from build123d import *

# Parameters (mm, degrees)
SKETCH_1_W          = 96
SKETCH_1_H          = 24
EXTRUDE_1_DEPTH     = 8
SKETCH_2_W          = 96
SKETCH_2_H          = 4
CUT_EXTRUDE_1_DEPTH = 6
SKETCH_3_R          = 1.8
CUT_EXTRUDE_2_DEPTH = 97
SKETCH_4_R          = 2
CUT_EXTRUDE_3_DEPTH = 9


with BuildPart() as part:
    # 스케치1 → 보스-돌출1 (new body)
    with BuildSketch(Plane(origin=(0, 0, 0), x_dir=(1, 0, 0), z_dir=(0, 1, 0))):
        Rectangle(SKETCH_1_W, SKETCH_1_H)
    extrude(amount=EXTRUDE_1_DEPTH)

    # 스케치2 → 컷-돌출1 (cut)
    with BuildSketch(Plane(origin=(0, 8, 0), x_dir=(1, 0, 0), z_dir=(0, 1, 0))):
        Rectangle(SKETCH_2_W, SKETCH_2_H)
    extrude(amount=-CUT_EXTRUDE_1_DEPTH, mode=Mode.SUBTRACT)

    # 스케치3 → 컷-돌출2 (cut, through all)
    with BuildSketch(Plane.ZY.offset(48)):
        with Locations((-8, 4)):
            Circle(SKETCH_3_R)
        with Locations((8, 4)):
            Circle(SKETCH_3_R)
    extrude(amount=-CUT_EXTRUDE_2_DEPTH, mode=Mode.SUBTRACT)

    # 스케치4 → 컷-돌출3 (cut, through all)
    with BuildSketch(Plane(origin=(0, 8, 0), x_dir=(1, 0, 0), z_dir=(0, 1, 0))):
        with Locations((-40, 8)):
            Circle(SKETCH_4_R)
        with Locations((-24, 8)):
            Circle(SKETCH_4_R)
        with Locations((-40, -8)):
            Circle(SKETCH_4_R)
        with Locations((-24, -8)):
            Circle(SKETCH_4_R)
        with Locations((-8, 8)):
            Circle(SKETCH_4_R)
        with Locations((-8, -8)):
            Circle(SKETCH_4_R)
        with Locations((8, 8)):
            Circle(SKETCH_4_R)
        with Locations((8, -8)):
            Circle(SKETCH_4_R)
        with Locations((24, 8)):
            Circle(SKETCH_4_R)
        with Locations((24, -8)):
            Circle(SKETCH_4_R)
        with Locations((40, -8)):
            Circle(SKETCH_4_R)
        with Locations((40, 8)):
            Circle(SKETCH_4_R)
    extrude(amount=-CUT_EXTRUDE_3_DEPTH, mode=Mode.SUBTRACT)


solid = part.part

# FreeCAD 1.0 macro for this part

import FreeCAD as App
import Part
import Sketcher
from FreeCAD import Vector


def add_polygon(sketch, points):
    """Adds a closed chain of lines whose ends are joined by coincident constraints."""
    first, n = sketch.GeometryCount, len(points)
    for a, b in zip(points, points[1:] + points[:1]):
        sketch.addGeometry(Part.LineSegment(App.Vector(*a, 0), App.Vector(*b, 0)), False)
    for i in range(n):
        sketch.addConstraint(Sketcher.Constraint("Coincident", first + i, 2, first + (i + 1) % n, 1))

doc = App.newDocument("Part")
body = doc.addObject("PartDesign::Body", "Body")

sketch1 = doc.addObject("Sketcher::SketchObject", "Sketch")
body.addObject(sketch1)
sketch1.AttachmentSupport = (doc.XZ_Plane, [""])
sketch1.MapMode = "FlatFace"
add_polygon(sketch1, [(-48, -12), (-48, 12), (48, 12), (48, -12)])
sketch1.addConstraint([
    Sketcher.Constraint("Vertical", 0),
    Sketcher.Constraint("Horizontal", 1),
    Sketcher.Constraint("Vertical", 2),
    Sketcher.Constraint("Horizontal", 3),
    Sketcher.Constraint("Symmetric", 0, 2, 2, 2, -1, 1),
    Sketcher.Constraint("DistanceX", 1, 1, 1, 2, 96.0),
    Sketcher.Constraint("DistanceY", 0, 1, 0, 2, 24.0),
])
pad1 = doc.addObject("PartDesign::Pad", "Pad")
body.addObject(pad1)
pad1.Profile = sketch1
pad1.Length = 8
pad1.Reversed = True

sketch2 = doc.addObject("Sketcher::SketchObject", "Sketch001")
body.addObject(sketch2)
sketch2.AttachmentSupport = (doc.XZ_Plane, [""])
sketch2.MapMode = "FlatFace"
sketch2.AttachmentOffset = App.Placement(Vector(0, 0, -8), App.Rotation())
add_polygon(sketch2, [(-48, -2), (-48, 2), (48, 2), (48, -2)])
sketch2.addConstraint([
    Sketcher.Constraint("Vertical", 0),
    Sketcher.Constraint("Horizontal", 1),
    Sketcher.Constraint("Vertical", 2),
    Sketcher.Constraint("Horizontal", 3),
    Sketcher.Constraint("Symmetric", 0, 2, 2, 2, -1, 1),
    Sketcher.Constraint("DistanceX", 1, 1, 1, 2, 96.0),
    Sketcher.Constraint("DistanceY", 0, 1, 0, 2, 4.0),
])
pocket1 = doc.addObject("PartDesign::Pocket", "Pocket")
body.addObject(pocket1)
pocket1.Profile = sketch2
pocket1.Length = 6
pocket1.Reversed = True

sketch3 = doc.addObject("Sketcher::SketchObject", "Sketch002")
body.addObject(sketch3)
sketch3.AttachmentSupport = (doc.YZ_Plane, [""])
sketch3.MapMode = "FlatFace"
sketch3.AttachmentOffset = App.Placement(Vector(0, 0, -48), App.Rotation())
sketch3.addGeometry([
    Part.Circle(Vector(4, -8, 0), Vector(0, 0, 1), 1.8),
    Part.Circle(Vector(4, 8, 0), Vector(0, 0, 1), 1.8),
], False)
sketch3.addConstraint([
    Sketcher.Constraint("Equal", 0, 1),
    Sketcher.Constraint("Symmetric", 0, 3, 1, 3, -1),
    Sketcher.Constraint("Diameter", 0, 3.6),
    Sketcher.Constraint("DistanceX", -1, 1, 0, 3, 4.0),
    Sketcher.Constraint("DistanceY", 0, 3, -1, 1, 8.0),
])
pocket2 = doc.addObject("PartDesign::Pocket", "Pocket001")
body.addObject(pocket2)
pocket2.Profile = sketch3
pocket2.Type = "ThroughAll"
pocket2.Reversed = True

sketch4 = doc.addObject("Sketcher::SketchObject", "Sketch003")
body.addObject(sketch4)
sketch4.AttachmentSupport = (doc.XZ_Plane, [""])
sketch4.MapMode = "FlatFace"
sketch4.AttachmentOffset = App.Placement(Vector(0, 0, -8), App.Rotation())
sketch4.addGeometry([
    Part.Circle(Vector(-40, -8, 0), Vector(0, 0, 1), 2),
    Part.Circle(Vector(-24, -8, 0), Vector(0, 0, 1), 2),
    Part.Circle(Vector(-40, 8, 0), Vector(0, 0, 1), 2),
    Part.Circle(Vector(-24, 8, 0), Vector(0, 0, 1), 2),
    Part.Circle(Vector(-8, -8, 0), Vector(0, 0, 1), 2),
    Part.Circle(Vector(-8, 8, 0), Vector(0, 0, 1), 2),
    Part.Circle(Vector(8, -8, 0), Vector(0, 0, 1), 2),
    Part.Circle(Vector(8, 8, 0), Vector(0, 0, 1), 2),
    Part.Circle(Vector(24, -8, 0), Vector(0, 0, 1), 2),
    Part.Circle(Vector(24, 8, 0), Vector(0, 0, 1), 2),
    Part.Circle(Vector(40, 8, 0), Vector(0, 0, 1), 2),
    Part.Circle(Vector(40, -8, 0), Vector(0, 0, 1), 2),
], False)
sketch4.addConstraint([
    Sketcher.Constraint("Equal", 0, 1),
    Sketcher.Constraint("Equal", 1, 2),
    Sketcher.Constraint("Equal", 2, 3),
    Sketcher.Constraint("Equal", 3, 4),
    Sketcher.Constraint("Equal", 4, 5),
    Sketcher.Constraint("Equal", 5, 6),
    Sketcher.Constraint("Equal", 6, 7),
    Sketcher.Constraint("Equal", 7, 8),
    Sketcher.Constraint("Equal", 8, 9),
    Sketcher.Constraint("Equal", 9, 10),
    Sketcher.Constraint("Equal", 10, 11),
    Sketcher.Constraint("Symmetric", 5, 3, 6, 3, -1, 1),
    Sketcher.Constraint("Symmetric", 4, 3, 7, 3, -1, 1),
    Sketcher.Constraint("Symmetric", 3, 3, 8, 3, -1, 1),
    Sketcher.Constraint("Symmetric", 1, 3, 9, 3, -1, 1),
    Sketcher.Constraint("Symmetric", 0, 3, 10, 3, -1, 1),
    Sketcher.Constraint("Symmetric", 2, 3, 11, 3, -1, 1),
    Sketcher.Constraint("Symmetric", 4, 3, 6, 3, -2),
    Sketcher.Constraint("Symmetric", 1, 3, 8, 3, -2),
    Sketcher.Constraint("Symmetric", 2, 3, 10, 3, -2),
    Sketcher.Constraint("Horizontal", 0, 3, 1, 3),
    Sketcher.Constraint("Horizontal", 1, 3, 4, 3),
    Sketcher.Constraint("Diameter", 0, 4.0),
    Sketcher.Constraint("DistanceX", 0, 3, -1, 1, 40.0),
    Sketcher.Constraint("DistanceY", 0, 3, -1, 1, 8.0),
    Sketcher.Constraint("DistanceX", 1, 3, -1, 1, 24.0),
    Sketcher.Constraint("DistanceX", 4, 3, -1, 1, 8.0),
])
pocket3 = doc.addObject("PartDesign::Pocket", "Pocket002")
body.addObject(pocket3)
pocket3.Profile = sketch4
pocket3.Type = "ThroughAll"
pocket3.Reversed = True

doc.recompute()
